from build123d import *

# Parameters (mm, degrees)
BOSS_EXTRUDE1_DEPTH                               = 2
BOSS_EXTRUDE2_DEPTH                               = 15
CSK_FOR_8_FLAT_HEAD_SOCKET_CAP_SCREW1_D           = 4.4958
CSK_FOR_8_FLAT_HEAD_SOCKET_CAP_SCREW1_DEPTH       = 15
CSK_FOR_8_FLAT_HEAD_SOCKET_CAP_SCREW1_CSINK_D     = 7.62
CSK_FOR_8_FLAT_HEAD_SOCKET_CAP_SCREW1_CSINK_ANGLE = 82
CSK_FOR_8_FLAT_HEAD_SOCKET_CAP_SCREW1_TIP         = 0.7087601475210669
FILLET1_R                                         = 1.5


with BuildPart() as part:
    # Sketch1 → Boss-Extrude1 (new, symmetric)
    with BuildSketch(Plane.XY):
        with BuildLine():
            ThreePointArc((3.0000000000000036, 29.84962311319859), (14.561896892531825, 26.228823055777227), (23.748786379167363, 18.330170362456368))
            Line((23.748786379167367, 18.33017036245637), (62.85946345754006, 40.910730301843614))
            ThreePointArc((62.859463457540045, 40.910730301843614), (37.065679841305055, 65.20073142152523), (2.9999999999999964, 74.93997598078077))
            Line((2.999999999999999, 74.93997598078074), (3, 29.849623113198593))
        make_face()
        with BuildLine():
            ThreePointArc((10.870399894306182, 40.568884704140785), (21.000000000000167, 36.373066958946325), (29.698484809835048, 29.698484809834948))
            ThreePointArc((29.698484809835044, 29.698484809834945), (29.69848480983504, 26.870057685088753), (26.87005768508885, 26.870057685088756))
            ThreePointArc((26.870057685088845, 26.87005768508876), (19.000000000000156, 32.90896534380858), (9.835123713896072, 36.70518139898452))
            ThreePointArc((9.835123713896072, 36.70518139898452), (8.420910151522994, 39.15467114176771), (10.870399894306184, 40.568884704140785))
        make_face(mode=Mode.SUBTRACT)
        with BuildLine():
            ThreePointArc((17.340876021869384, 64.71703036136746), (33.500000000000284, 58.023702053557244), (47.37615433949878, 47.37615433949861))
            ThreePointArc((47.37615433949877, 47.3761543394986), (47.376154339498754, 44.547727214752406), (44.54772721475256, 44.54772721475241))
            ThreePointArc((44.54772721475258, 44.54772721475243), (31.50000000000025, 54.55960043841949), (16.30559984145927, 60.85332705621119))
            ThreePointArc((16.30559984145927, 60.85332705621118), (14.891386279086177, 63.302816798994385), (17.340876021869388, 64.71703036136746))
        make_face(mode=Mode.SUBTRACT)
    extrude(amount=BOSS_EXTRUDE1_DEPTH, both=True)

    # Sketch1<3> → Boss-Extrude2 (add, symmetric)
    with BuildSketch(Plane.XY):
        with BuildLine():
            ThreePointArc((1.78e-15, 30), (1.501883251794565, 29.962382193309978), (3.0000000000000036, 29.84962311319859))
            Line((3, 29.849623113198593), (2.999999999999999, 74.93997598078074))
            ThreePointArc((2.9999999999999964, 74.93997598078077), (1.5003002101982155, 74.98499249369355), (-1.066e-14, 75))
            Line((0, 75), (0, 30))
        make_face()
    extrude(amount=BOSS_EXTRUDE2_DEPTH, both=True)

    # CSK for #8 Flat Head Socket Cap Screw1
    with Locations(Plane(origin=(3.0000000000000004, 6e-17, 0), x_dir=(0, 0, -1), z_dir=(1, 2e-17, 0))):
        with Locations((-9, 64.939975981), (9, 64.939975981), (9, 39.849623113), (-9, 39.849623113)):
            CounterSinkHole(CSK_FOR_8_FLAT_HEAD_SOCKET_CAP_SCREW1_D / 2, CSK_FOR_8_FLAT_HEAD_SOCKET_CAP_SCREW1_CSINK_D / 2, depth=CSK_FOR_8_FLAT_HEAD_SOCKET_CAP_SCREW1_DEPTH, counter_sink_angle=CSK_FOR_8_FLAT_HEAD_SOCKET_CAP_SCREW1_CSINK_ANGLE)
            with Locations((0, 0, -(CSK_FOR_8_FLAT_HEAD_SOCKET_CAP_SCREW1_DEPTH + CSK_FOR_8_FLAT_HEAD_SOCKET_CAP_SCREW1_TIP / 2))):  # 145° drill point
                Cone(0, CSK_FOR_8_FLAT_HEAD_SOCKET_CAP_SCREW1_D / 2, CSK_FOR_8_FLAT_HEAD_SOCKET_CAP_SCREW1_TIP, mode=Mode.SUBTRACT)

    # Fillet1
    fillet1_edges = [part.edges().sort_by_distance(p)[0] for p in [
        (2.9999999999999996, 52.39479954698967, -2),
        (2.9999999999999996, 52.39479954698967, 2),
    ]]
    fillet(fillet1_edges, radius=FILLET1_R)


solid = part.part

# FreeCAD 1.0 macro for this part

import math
import FreeCAD as App
import Part
import Sketcher
from FreeCAD import Vector
Q = App.Units.Quantity


def edges_at(feature, points):
    """Names of the edges that pass closest to the given points."""
    edges = feature.Shape.Edges
    near = lambda p: min(range(len(edges)), key=lambda i: edges[i].distToShape(Part.Vertex(*p))[0])
    return sorted({f"Edge{near(p) + 1}" for p in points})

doc = App.newDocument("Part")
params = doc.addObject("Spreadsheet::Sheet", "Params")
for row, (alias, value) in enumerate([
    ("sketch1_radius", "30 mm"),
    ("sketch1_radius2", "75 mm"),
    ("sketch1_radius3", "2 mm"),
    ("sketch1_radius4", "42 mm"),
    ("sketch1_radius5", "67 mm"),
    ("pad1_length", "4 mm"),
    ("sketch2_radius", "30 mm"),
    ("sketch2_radius2", "75 mm"),
    ("pad2_length", "30 mm"),
    ("hole_diameter", "4.4958 mm"),
    ("hole_depth", "15 mm"),
    ("hole_csink_diameter", "7.62 mm"),
    ("fillet_radius", "1.5 mm"),
], start=1):
    params.set(f"A{row}", alias)
    params.set(f"B{row}", "=" + value)
    params.setAlias(f"B{row}", alias)

body = doc.addObject("PartDesign::Body", "Body")

# Sketch on XY plane
sketch1 = body.newObject("Sketcher::SketchObject", "Sketch")
sketch1.AttachmentSupport = (doc.getObject("XY_Plane"), [""])
sketch1.MapMode = "FlatFace"
sketch1.addGeometry(Part.ArcOfCircle(Part.Circle(Vector(0, 0, 0), Vector(0, 0, 1), 30), math.radians(37.662256), math.radians(84.26083)), False)
sketch1.addGeometry(Part.LineSegment(Vector(23.748786, 18.33017, 0), Vector(62.859463, 40.91073, 0)), False)
sketch1.addGeometry(Part.ArcOfCircle(Part.Circle(Vector(0, 0, 0), Vector(0, 0, 1), 75), math.radians(33.057225), math.radians(87.707557)), False)
sketch1.addGeometry(Part.LineSegment(Vector(3, 74.939976, 0), Vector(3, 29.849623, 0)), False)
sketch1.addGeometry(Part.ArcOfCircle(Part.Circle(Vector(10.352762, 38.637033, 0), Vector(0, 0, 1), 2), math.radians(75), math.radians(255)), False)
sketch1.addGeometry(Part.ArcOfCircle(Part.Circle(Vector(0, 0, 0), Vector(0, 0, 1), 42), math.radians(45), math.radians(75)), False)
sketch1.addGeometry(Part.ArcOfCircle(Part.Circle(Vector(28.284271, 28.284271, 0), Vector(0, 0, 1), 2), math.radians(-135), math.radians(45)), False)
sketch1.addGeometry(Part.ArcOfCircle(Part.Circle(Vector(0, 0, 0), Vector(0, 0, 1), 38), math.radians(45), math.radians(75)), False)
sketch1.addGeometry(Part.ArcOfCircle(Part.Circle(Vector(16.823238, 62.785179, 0), Vector(0, 0, 1), 2), math.radians(75), math.radians(255)), False)
sketch1.addGeometry(Part.ArcOfCircle(Part.Circle(Vector(0, 0, 0), Vector(0, 0, 1), 67), math.radians(45), math.radians(75)), False)
sketch1.addGeometry(Part.ArcOfCircle(Part.Circle(Vector(45.961941, 45.961941, 0), Vector(0, 0, 1), 2), math.radians(-135), math.radians(45)), False)
sketch1.addGeometry(Part.ArcOfCircle(Part.Circle(Vector(0, 0, 0), Vector(0, 0, 1), 63), math.radians(45), math.radians(75)), False)
sketch1.addConstraint(Sketcher.Constraint("Coincident", 0, 1, 1, 1))
sketch1.addConstraint(Sketcher.Constraint("Coincident", 1, 2, 2, 1))
sketch1.addConstraint(Sketcher.Constraint("Coincident", 2, 2, 3, 1))
sketch1.addConstraint(Sketcher.Constraint("Coincident", 3, 2, 0, 2))
sketch1.addConstraint(Sketcher.Constraint("Tangent", 4, 1, 5, 2))
sketch1.addConstraint(Sketcher.Constraint("Tangent", 5, 1, 6, 2))
sketch1.addConstraint(Sketcher.Constraint("Tangent", 6, 1, 7, 1))
sketch1.addConstraint(Sketcher.Constraint("Tangent", 7, 2, 4, 2))
sketch1.addConstraint(Sketcher.Constraint("Tangent", 8, 1, 9, 2))
sketch1.addConstraint(Sketcher.Constraint("Tangent", 9, 1, 10, 2))
sketch1.addConstraint(Sketcher.Constraint("Tangent", 10, 1, 11, 1))
sketch1.addConstraint(Sketcher.Constraint("Tangent", 11, 2, 8, 2))
sketch1.addConstraint(Sketcher.Constraint("Vertical", 3))
sketch1.addConstraint(Sketcher.Constraint("Coincident", 0, 3, -1, 1))
sketch1.addConstraint(Sketcher.Constraint("Coincident", 2, 3, -1, 1))
sketch1.addConstraint(Sketcher.Constraint("Coincident", 5, 3, -1, 1))
sketch1.addConstraint(Sketcher.Constraint("Coincident", 7, 3, -1, 1))
sketch1.addConstraint(Sketcher.Constraint("Coincident", 9, 3, -1, 1))
sketch1.addConstraint(Sketcher.Constraint("Coincident", 11, 3, -1, 1))
sketch1.addConstraint(Sketcher.Constraint("Equal", 6, 8))
sketch1.addConstraint(Sketcher.Constraint("Radius", 0, Q("30 mm")))
sketch1.addConstraint(Sketcher.Constraint("Radius", 2, Q("75 mm")))
sketch1.addConstraint(Sketcher.Constraint("Radius", 4, Q("2 mm")))
sketch1.addConstraint(Sketcher.Constraint("Radius", 5, Q("42 mm")))
sketch1.addConstraint(Sketcher.Constraint("Radius", 9, Q("67 mm")))
sketch1.addConstraint(Sketcher.Constraint("Angle", 1, Q("30 deg")))
sketch1.addConstraint(Sketcher.Constraint("DistanceX", -1, 1, 2, 2, Q("3 mm")))
sketch1.addConstraint(Sketcher.Constraint("DistanceX", -1, 1, 4, 1, Q("10.8704 mm")))
sketch1.addConstraint(Sketcher.Constraint("DistanceX", -1, 1, 11, 2, Q("16.3056 mm")))
sketch1.addConstraint(Sketcher.Constraint("DistanceY", 0, 1, 6, 3, Q("9.954101 mm")))
sketch1.addConstraint(Sketcher.Constraint("DistanceX", 4, 3, 1, 2, Q("52.506702 mm")))
sketch1.addConstraint(Sketcher.Constraint("DistanceX", -1, 1, 10, 3, Q("45.961941 mm")))
sketch1.setExpression("Constraints[20]", "Params.sketch1_radius")
sketch1.setExpression("Constraints[21]", "Params.sketch1_radius2")
sketch1.setExpression("Constraints[22]", "Params.sketch1_radius3")
sketch1.setExpression("Constraints[23]", "Params.sketch1_radius4")
sketch1.setExpression("Constraints[24]", "Params.sketch1_radius5")
pad1 = body.newObject("PartDesign::Pad", "Pad")
pad1.Profile = sketch1
pad1.setExpression("Length", "Params.pad1_length")
pad1.Midplane = True

# Sketch on XY plane
sketch2 = body.newObject("Sketcher::SketchObject", "Sketch001")
sketch2.AttachmentSupport = (doc.getObject("XY_Plane"), [""])
sketch2.MapMode = "FlatFace"
sketch2.addGeometry(Part.ArcOfCircle(Part.Circle(Vector(0, 0, 0), Vector(0, 0, 1), 30), math.radians(84.26083), math.radians(90)), False)
sketch2.addGeometry(Part.LineSegment(Vector(3, 29.849623, 0), Vector(3, 74.939976, 0)), False)
sketch2.addGeometry(Part.ArcOfCircle(Part.Circle(Vector(0, 0, 0), Vector(0, 0, 1), 75), math.radians(87.707557), math.radians(90)), False)
sketch2.addGeometry(Part.LineSegment(Vector(0, 75, 0), Vector(0, 30, 0)), False)
sketch2.addConstraint(Sketcher.Constraint("Coincident", 0, 1, 1, 1))
sketch2.addConstraint(Sketcher.Constraint("Coincident", 1, 2, 2, 1))
sketch2.addConstraint(Sketcher.Constraint("Coincident", 2, 2, 3, 1))
sketch2.addConstraint(Sketcher.Constraint("Coincident", 3, 2, 0, 2))
sketch2.addConstraint(Sketcher.Constraint("Vertical", 1))
sketch2.addConstraint(Sketcher.Constraint("Vertical", 3))
sketch2.addConstraint(Sketcher.Constraint("Coincident", 0, 3, -1, 1))
sketch2.addConstraint(Sketcher.Constraint("Coincident", 2, 3, -1, 1))
sketch2.addConstraint(Sketcher.Constraint("PointOnObject", 2, 2, -2))
sketch2.addConstraint(Sketcher.Constraint("Radius", 0, Q("30 mm")))
sketch2.addConstraint(Sketcher.Constraint("Radius", 2, Q("75 mm")))
sketch2.addConstraint(Sketcher.Constraint("DistanceX", -1, 1, 0, 1, Q("3 mm")))
sketch2.setExpression("Constraints[9]", "Params.sketch2_radius")
sketch2.setExpression("Constraints[10]", "Params.sketch2_radius2")
pad2 = body.newObject("PartDesign::Pad", "Pad001")
pad2.Profile = sketch2
pad2.setExpression("Length", "Params.pad2_length")
pad2.Midplane = True

# Sketch on YZ plane
sketch3 = body.newObject("Sketcher::SketchObject", "Sketch002")
sketch3.AttachmentSupport = (doc.getObject("YZ_Plane"), [""])
sketch3.MapMode = "FlatFace"
sketch3.AttachmentOffset = App.Placement(Vector(0, 0, 3), App.Rotation())
sketch3.addGeometry(Part.Circle(Vector(64.939976, 9, 0), Vector(0, 0, 1), 2.2479), False)
sketch3.addGeometry(Part.Circle(Vector(64.939976, -9, 0), Vector(0, 0, 1), 2.2479), False)
sketch3.addGeometry(Part.Circle(Vector(39.849623, -9, 0), Vector(0, 0, 1), 2.2479), False)
sketch3.addGeometry(Part.Circle(Vector(39.849623, 9, 0), Vector(0, 0, 1), 2.2479), False)
sketch3.addConstraint(Sketcher.Constraint("Equal", 0, 1))
sketch3.addConstraint(Sketcher.Constraint("Equal", 1, 2))
sketch3.addConstraint(Sketcher.Constraint("Equal", 2, 3))
sketch3.addConstraint(Sketcher.Constraint("Symmetric", 0, 3, 1, 3, -1))
sketch3.addConstraint(Sketcher.Constraint("Symmetric", 2, 3, 3, 3, -1))
sketch3.addConstraint(Sketcher.Constraint("Horizontal", 1, 3, 2, 3))
sketch3.addConstraint(Sketcher.Constraint("DistanceY", -1, 1, 0, 3, Q("9 mm")))
sketch3.addConstraint(Sketcher.Constraint("Diameter", 0, Q("4.4958 mm")))
sketch3.addConstraint(Sketcher.Constraint("DistanceX", -1, 1, 0, 3, Q("64.939976 mm")))
sketch3.addConstraint(Sketcher.Constraint("DistanceX", -1, 1, 2, 3, Q("39.849623 mm")))
doc.recompute()
hole = body.newObject("PartDesign::Hole", "Hole")
hole.Profile = sketch3
hole.ThreadType = "None"
hole.setExpression("Diameter", "Params.hole_diameter")
hole.DepthType = "Dimension"
hole.setExpression("Depth", "Params.hole_depth")
hole.DrillPoint = "Angled"
hole.DrillPointAngle = 145
hole.HoleCutType = "Countersink"
hole.setExpression("HoleCutDiameter", "Params.hole_csink_diameter")
hole.HoleCutCountersinkAngle = 82
doc.recompute()

fillet = body.newObject("PartDesign::Fillet", "Fillet")
fillet.Base = (hole, edges_at(hole, [(3, 52.395, -2), (3, 52.395, 2)]))
fillet.setExpression("Radius", "Params.fillet_radius")

doc.recompute()
